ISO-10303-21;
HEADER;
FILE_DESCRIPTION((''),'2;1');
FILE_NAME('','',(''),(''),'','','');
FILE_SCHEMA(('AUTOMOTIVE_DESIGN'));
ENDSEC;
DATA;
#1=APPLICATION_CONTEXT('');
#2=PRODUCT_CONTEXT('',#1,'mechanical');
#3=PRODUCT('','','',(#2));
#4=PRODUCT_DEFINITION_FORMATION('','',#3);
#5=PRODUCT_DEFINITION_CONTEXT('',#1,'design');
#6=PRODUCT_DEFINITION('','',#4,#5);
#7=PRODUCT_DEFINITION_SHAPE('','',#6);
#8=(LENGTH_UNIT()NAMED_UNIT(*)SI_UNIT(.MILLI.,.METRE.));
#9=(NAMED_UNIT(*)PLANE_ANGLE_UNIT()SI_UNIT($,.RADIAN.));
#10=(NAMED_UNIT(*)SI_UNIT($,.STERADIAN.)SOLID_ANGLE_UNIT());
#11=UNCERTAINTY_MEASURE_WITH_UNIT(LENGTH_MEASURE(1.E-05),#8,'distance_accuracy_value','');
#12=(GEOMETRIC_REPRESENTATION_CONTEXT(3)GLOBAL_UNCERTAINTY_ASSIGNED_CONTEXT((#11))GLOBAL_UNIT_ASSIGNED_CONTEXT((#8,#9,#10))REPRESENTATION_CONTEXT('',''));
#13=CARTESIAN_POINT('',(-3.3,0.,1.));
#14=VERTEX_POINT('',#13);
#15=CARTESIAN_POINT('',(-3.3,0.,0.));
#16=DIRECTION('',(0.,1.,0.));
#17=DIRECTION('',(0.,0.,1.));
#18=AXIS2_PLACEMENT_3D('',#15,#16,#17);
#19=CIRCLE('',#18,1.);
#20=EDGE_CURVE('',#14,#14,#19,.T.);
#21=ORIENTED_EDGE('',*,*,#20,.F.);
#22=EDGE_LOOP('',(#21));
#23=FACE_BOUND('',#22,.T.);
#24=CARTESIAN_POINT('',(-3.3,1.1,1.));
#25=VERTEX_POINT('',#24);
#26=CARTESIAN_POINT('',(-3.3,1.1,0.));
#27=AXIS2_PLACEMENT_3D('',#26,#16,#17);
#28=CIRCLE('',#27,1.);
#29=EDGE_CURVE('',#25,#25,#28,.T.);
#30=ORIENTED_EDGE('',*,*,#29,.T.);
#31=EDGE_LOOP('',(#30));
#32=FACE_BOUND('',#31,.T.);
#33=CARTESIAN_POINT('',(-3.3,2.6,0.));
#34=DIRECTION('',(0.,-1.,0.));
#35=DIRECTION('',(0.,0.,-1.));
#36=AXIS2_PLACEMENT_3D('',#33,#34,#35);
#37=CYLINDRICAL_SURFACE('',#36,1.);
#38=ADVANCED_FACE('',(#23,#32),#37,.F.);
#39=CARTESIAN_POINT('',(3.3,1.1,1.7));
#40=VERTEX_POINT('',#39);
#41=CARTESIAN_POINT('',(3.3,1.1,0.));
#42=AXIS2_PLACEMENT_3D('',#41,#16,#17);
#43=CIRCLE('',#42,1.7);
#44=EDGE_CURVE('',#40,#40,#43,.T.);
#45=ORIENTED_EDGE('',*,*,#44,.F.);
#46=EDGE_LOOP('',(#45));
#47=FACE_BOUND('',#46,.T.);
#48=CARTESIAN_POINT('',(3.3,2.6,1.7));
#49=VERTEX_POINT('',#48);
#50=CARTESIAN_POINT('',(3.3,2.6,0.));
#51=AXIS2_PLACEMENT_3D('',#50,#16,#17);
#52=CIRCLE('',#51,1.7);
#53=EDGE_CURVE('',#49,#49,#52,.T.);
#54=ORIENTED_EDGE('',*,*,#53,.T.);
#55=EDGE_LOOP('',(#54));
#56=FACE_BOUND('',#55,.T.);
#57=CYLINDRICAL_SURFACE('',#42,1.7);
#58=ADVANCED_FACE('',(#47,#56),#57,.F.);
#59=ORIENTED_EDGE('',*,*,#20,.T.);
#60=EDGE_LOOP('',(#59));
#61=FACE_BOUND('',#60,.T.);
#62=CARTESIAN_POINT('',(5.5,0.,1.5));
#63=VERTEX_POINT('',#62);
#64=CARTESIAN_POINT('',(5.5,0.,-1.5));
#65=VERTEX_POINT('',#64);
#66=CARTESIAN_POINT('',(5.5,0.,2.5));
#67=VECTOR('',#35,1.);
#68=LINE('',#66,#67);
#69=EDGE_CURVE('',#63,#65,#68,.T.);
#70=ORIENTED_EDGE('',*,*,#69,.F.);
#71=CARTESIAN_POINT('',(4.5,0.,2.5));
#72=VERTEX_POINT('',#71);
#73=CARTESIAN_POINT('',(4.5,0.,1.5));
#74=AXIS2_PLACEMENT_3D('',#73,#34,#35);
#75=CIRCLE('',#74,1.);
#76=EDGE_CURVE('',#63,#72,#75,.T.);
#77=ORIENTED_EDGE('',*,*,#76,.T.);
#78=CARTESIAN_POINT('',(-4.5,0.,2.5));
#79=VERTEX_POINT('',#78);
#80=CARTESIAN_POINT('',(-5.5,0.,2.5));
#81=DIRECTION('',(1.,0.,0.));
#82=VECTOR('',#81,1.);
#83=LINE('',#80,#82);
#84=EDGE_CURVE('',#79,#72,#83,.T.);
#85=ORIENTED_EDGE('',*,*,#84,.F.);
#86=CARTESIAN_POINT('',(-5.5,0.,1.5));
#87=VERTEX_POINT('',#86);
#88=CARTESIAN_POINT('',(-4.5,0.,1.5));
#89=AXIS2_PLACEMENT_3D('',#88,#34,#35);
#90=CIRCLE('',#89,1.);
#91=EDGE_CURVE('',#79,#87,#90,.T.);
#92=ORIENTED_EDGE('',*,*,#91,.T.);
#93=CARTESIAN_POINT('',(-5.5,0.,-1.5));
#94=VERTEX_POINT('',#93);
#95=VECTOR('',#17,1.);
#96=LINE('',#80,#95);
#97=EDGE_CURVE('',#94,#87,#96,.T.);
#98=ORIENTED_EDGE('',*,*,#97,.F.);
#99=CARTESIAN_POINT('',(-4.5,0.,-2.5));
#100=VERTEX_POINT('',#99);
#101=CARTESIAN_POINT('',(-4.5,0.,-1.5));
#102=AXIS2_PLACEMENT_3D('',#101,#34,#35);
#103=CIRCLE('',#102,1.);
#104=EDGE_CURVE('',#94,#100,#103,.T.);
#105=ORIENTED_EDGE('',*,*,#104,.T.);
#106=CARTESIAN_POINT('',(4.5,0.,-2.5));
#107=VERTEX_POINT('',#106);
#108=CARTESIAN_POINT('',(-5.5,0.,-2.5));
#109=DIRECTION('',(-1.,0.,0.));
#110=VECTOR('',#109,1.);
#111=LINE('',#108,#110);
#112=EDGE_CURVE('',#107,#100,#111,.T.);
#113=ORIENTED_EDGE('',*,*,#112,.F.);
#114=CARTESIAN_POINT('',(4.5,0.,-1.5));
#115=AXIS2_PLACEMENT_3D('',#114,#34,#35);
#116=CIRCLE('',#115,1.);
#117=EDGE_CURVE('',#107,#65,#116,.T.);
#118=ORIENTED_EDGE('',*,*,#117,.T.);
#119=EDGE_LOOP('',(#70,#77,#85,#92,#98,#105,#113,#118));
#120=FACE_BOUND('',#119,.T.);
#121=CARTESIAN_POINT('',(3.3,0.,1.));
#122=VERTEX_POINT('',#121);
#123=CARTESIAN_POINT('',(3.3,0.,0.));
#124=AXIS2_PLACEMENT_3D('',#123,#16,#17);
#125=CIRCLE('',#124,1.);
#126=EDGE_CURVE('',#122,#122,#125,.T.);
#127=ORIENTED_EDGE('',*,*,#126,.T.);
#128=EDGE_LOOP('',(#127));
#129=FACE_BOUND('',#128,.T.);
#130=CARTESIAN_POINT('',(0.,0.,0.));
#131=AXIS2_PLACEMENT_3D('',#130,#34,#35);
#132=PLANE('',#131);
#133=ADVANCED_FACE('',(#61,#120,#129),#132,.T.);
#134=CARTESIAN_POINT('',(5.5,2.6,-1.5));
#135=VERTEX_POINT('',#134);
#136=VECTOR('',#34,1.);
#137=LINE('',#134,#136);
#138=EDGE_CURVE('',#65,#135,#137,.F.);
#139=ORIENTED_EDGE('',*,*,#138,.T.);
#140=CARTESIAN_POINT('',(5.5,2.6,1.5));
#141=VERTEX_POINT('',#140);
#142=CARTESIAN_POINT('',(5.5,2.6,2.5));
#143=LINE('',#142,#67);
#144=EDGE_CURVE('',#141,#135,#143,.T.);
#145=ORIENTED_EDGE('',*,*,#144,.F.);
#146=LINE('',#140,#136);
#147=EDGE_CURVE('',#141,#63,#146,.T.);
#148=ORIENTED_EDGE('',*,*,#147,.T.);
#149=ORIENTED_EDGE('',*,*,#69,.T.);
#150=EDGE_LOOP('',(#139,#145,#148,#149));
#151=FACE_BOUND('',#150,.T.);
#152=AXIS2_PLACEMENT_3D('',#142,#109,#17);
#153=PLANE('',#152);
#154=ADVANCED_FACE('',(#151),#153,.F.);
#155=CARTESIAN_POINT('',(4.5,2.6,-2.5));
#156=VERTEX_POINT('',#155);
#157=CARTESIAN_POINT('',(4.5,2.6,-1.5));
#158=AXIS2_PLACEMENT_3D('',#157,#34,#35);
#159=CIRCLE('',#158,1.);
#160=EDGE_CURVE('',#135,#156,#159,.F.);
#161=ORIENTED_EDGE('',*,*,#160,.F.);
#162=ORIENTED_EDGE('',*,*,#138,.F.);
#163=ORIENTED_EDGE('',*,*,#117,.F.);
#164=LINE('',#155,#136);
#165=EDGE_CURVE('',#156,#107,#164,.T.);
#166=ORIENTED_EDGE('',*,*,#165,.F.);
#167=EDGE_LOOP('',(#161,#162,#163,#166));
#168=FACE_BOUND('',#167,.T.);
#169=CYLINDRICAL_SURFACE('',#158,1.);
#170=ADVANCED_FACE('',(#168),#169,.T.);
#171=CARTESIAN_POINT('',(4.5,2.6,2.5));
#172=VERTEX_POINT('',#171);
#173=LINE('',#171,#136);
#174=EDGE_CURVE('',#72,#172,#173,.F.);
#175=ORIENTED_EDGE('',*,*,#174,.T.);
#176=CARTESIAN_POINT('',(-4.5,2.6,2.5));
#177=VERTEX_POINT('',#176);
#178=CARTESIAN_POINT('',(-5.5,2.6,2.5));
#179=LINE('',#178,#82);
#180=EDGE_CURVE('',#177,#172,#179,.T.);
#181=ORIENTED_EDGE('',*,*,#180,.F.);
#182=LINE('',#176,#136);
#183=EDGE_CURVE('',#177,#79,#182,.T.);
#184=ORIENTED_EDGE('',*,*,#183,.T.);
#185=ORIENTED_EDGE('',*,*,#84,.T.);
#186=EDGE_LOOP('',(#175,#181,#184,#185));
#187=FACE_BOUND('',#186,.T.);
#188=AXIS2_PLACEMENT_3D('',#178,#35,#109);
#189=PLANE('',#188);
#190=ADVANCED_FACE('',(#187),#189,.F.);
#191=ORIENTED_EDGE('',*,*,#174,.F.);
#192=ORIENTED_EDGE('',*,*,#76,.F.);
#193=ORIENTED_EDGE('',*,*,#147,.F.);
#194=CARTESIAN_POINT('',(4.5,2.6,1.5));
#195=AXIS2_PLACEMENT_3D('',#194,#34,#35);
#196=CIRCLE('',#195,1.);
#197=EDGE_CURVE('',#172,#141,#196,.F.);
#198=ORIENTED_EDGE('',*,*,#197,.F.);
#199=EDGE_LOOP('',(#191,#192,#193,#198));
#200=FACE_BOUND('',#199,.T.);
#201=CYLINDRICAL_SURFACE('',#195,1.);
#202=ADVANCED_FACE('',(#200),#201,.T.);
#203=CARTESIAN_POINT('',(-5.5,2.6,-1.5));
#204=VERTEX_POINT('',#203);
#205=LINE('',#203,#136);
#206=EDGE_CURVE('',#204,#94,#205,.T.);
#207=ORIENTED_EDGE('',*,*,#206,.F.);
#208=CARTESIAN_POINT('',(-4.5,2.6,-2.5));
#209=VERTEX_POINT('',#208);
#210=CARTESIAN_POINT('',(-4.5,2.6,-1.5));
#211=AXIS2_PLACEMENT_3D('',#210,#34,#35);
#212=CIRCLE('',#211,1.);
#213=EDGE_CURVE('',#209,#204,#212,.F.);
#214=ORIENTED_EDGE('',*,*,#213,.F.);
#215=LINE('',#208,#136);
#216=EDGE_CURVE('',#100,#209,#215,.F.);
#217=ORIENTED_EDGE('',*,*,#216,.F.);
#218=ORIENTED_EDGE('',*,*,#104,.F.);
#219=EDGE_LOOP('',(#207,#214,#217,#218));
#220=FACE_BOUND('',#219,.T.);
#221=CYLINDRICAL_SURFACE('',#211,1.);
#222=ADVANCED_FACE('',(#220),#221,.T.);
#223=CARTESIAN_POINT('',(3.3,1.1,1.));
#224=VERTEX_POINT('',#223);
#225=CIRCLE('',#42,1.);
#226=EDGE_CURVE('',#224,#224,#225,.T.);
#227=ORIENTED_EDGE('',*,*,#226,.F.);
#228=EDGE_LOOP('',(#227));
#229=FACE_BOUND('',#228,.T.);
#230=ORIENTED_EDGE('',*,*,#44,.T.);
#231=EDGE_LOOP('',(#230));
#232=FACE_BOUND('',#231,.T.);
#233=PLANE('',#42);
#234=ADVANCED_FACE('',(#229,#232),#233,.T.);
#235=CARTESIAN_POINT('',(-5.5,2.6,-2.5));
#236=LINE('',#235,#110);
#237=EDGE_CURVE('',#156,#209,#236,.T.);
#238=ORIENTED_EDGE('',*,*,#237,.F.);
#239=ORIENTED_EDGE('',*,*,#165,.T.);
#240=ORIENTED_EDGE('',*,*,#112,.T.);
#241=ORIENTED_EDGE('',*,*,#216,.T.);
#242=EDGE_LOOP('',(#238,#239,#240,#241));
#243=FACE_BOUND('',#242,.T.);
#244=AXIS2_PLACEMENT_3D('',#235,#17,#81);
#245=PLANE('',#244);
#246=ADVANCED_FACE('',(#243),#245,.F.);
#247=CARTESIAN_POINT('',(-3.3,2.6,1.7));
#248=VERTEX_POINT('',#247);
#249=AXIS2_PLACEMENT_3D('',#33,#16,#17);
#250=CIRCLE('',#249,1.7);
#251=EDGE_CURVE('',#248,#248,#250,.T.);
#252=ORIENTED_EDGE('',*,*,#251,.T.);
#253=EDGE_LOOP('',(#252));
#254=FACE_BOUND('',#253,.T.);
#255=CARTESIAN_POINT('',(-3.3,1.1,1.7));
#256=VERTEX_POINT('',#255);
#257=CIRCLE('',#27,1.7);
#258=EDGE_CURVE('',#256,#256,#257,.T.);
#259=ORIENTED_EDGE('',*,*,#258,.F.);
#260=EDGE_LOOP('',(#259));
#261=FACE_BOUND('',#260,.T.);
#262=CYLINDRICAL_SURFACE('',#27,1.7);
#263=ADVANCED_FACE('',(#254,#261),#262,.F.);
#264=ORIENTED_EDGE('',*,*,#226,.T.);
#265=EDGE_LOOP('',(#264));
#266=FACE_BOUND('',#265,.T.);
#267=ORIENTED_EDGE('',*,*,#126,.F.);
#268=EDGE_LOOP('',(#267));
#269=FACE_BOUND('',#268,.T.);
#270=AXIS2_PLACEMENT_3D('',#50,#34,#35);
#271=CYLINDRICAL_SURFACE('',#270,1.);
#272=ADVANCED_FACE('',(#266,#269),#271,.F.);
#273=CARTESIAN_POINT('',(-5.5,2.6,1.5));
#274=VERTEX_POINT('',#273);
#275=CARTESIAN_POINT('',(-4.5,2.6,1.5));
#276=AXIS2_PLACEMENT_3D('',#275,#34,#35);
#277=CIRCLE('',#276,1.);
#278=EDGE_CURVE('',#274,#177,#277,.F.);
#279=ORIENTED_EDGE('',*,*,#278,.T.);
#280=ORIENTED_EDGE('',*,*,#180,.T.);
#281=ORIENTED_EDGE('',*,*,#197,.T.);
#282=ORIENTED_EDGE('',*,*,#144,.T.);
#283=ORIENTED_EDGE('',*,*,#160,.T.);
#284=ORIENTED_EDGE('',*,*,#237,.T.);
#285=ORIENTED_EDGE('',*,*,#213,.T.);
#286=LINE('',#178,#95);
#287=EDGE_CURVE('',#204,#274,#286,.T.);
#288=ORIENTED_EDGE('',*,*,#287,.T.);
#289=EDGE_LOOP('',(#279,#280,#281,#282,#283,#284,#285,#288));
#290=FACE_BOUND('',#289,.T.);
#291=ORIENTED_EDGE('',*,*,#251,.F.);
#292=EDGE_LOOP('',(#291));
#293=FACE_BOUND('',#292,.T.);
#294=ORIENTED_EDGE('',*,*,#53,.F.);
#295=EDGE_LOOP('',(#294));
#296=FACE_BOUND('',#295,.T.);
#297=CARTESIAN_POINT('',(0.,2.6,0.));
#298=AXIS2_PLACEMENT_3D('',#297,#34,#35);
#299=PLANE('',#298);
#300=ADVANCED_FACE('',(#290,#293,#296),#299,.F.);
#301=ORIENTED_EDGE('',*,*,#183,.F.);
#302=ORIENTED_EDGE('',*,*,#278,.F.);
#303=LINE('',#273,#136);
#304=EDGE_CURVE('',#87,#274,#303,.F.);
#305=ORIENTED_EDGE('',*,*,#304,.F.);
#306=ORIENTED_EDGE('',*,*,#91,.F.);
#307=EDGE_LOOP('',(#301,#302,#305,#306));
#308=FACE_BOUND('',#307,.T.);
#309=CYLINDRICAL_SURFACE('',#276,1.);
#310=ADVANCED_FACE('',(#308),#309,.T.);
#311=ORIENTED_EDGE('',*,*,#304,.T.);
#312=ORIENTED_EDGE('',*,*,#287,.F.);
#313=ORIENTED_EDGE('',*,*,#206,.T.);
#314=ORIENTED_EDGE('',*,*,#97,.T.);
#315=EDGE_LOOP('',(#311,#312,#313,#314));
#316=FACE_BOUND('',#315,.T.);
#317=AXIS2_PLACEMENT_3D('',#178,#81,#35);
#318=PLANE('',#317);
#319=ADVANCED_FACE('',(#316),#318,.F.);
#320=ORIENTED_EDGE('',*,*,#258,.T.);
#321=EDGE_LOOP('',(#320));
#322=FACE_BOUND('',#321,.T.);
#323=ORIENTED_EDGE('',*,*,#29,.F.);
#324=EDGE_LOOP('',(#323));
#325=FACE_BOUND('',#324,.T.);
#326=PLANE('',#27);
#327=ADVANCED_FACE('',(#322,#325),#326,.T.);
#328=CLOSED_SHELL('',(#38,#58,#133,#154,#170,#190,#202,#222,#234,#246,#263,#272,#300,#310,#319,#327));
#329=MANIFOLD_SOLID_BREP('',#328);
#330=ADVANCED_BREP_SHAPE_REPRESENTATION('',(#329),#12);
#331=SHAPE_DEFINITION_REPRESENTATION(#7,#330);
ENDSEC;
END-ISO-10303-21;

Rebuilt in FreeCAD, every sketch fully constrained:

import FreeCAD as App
import Part
import Sketcher

V = App.Vector
Q = App.Units.Quantity


def edges_at(feature, points):
    """Names of the edges that pass closest to the given points."""
    edges = feature.Shape.Edges
    near = lambda p: min(range(len(edges)), key=lambda i: edges[i].distToShape(Part.Vertex(*p))[0])
    return sorted({f"Edge{near(p) + 1}" for p in points})

doc = App.newDocument("Part")
body = doc.addObject("PartDesign::Body", "Body")

# Sketch on XZ plane
sketch1 = body.newObject("Sketcher::SketchObject", "Sketch")
sketch1.AttachmentSupport = (doc.getObject("XZ_Plane"), [""])
sketch1.MapMode = "FlatFace"
sketch1.addGeometry([
    Part.LineSegment(V(-5.5, -2.5, 0), V(-5.5, 2.5, 0)),  # 0
    Part.LineSegment(V(-5.5, 2.5, 0), V(5.5, 2.5, 0)),  # 1
    Part.LineSegment(V(5.5, 2.5, 0), V(5.5, -2.5, 0)),  # 2
    Part.LineSegment(V(5.5, -2.5, 0), V(-5.5, -2.5, 0)),  # 3
    Part.Circle(V(-3.3, 0, 0), V(0, 0, 1), 1),  # 4
    Part.Circle(V(3.3, 0, 0), V(0, 0, 1), 1),  # 5
], False)
sketch1.addConstraint([
    Sketcher.Constraint("Coincident", 0, 2, 1, 1),
    Sketcher.Constraint("Coincident", 1, 2, 2, 1),
    Sketcher.Constraint("Coincident", 2, 2, 3, 1),
    Sketcher.Constraint("Coincident", 3, 2, 0, 1),
    Sketcher.Constraint("Vertical", 0),
    Sketcher.Constraint("Horizontal", 1),
    Sketcher.Constraint("Vertical", 2),
    Sketcher.Constraint("Horizontal", 3),
    Sketcher.Constraint("Equal", 4, 5),
    Sketcher.Constraint("Symmetric", 4, 3, 5, 3, -1, 1),
    Sketcher.Constraint("Symmetric", 0, 2, 2, 2, -1, 1),
    Sketcher.Constraint("PointOnObject", 4, 3, -1),
    Sketcher.Constraint("Diameter", 4, Q("2 mm")),
    Sketcher.Constraint("DistanceX", 1, 1, 1, 2, Q("11 mm")),
    Sketcher.Constraint("DistanceY", 0, 1, 0, 2, Q("5 mm")),
    Sketcher.Constraint("DistanceX", 4, 3, -1, 1, Q("3.3 mm")),
])
pad1 = body.newObject("PartDesign::Pad", "Pad")
pad1.Profile = sketch1
pad1.Length = 2.6
pad1.Reversed = True

# Sketch on XZ plane
sketch2 = body.newObject("Sketcher::SketchObject", "Sketch001")
sketch2.AttachmentSupport = (doc.getObject("XZ_Plane"), [""])
sketch2.MapMode = "FlatFace"
sketch2.AttachmentOffset = App.Placement(V(0, 0, -2.6), App.Rotation())
sketch2.addGeometry([
    Part.Circle(V(-3.3, 0, 0), V(0, 0, 1), 1.7),
    Part.Circle(V(3.3, 0, 0), V(0, 0, 1), 1.7),
], False)
sketch2.addConstraint([
    Sketcher.Constraint("Equal", 0, 1),
    Sketcher.Constraint("Symmetric", 0, 3, 1, 3, -1, 1),
    Sketcher.Constraint("PointOnObject", 0, 3, -1),
    Sketcher.Constraint("Diameter", 0, Q("3.4 mm")),
    Sketcher.Constraint("DistanceX", 0, 3, -1, 1, Q("3.3 mm")),
])
pocket1 = body.newObject("PartDesign::Pocket", "Pocket")
pocket1.Profile = sketch2
pocket1.Length = 1.5
pocket1.Reversed = True
doc.recompute()

fillet = body.newObject("PartDesign::Fillet", "Fillet")
fillet.Base = (pocket1, edges_at(pocket1, [
    (5.5, 1.3, 2.5),
    (-5.5, 1.3, 2.5),
    (-5.5, 1.3, -2.5),
    (5.5, 1.3, -2.5),
]))
fillet.Radius = 1

doc.recompute()
